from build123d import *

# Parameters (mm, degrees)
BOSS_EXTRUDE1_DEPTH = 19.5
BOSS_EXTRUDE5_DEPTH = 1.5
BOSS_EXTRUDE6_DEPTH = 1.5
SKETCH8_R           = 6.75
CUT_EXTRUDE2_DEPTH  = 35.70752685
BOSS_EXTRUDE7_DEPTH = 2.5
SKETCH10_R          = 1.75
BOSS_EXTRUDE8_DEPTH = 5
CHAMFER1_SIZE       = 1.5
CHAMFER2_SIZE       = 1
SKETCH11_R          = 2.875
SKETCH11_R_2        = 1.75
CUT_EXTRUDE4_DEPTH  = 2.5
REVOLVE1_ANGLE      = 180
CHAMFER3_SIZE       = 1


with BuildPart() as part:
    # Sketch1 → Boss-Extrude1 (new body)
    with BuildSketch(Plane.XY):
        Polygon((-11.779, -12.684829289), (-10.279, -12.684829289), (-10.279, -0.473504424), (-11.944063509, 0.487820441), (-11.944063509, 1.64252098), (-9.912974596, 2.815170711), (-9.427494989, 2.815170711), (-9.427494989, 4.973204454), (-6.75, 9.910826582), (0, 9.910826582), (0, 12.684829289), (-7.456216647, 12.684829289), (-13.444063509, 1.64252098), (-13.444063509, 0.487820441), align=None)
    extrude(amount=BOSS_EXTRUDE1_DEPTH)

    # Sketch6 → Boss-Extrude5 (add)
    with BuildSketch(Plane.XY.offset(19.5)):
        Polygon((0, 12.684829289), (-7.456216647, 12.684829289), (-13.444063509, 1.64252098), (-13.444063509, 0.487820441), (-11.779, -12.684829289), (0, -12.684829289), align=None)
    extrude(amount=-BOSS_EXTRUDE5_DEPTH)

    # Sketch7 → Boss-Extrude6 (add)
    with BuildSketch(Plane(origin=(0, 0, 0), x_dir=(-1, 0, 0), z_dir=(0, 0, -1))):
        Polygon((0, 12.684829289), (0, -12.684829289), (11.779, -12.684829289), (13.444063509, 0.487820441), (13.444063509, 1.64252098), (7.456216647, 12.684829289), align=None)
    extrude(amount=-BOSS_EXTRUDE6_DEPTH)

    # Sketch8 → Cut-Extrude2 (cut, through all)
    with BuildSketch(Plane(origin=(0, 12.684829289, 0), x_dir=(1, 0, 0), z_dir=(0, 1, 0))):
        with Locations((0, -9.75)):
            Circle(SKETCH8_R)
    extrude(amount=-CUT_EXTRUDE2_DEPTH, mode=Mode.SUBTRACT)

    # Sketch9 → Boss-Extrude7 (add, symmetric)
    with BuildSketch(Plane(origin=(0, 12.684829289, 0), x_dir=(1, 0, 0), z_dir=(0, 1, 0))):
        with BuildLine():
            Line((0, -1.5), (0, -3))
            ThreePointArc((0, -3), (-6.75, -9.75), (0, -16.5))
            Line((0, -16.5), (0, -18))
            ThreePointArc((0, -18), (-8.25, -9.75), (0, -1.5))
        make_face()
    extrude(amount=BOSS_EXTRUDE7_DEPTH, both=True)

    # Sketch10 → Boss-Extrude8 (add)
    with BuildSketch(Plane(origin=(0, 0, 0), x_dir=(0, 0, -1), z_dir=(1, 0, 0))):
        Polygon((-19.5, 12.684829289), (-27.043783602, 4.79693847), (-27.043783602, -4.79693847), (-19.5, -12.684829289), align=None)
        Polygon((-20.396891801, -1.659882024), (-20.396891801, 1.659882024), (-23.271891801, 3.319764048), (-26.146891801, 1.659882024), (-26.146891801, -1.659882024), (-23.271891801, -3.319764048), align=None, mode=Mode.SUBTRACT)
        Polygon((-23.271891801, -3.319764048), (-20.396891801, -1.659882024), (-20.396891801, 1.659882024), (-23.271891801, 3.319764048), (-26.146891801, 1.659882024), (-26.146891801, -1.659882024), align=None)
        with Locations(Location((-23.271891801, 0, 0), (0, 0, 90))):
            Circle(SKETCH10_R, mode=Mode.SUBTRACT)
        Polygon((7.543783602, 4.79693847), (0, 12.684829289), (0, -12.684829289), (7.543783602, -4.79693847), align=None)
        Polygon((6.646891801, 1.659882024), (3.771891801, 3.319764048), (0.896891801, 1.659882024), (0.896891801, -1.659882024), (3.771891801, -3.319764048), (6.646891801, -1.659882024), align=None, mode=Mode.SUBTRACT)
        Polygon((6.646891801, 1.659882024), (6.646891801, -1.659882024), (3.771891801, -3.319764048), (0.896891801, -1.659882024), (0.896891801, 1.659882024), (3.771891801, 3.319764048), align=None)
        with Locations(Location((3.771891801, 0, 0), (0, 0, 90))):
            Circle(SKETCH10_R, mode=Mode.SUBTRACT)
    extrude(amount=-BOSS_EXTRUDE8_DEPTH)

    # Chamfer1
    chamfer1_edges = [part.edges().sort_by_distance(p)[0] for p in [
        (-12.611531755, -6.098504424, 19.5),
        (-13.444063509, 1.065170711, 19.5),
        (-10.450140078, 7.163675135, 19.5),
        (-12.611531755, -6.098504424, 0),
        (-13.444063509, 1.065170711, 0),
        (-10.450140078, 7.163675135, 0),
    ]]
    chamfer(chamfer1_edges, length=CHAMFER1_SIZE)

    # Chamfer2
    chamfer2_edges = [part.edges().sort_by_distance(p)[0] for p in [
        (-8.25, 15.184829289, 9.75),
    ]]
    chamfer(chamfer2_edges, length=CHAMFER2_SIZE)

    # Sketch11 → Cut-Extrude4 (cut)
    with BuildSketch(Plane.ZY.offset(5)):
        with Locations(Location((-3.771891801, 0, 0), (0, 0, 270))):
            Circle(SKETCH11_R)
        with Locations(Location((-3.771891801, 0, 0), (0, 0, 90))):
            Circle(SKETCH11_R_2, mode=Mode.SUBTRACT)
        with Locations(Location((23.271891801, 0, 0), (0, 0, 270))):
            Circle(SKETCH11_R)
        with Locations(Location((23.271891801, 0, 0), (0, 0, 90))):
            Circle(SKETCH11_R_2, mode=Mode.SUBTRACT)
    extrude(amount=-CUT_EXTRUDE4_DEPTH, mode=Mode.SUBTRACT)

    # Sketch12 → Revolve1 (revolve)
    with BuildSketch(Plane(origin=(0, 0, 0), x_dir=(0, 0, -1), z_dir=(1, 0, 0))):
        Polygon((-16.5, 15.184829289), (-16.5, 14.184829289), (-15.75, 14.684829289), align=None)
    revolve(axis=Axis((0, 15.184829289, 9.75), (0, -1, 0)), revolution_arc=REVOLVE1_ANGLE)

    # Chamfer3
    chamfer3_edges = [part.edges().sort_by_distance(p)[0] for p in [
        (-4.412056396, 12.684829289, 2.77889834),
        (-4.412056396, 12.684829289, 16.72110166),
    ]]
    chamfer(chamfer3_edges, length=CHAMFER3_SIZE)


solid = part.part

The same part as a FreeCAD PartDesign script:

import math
import FreeCAD as App
import Part
import Sketcher

V = App.Vector
Q = App.Units.Quantity


def edges_at(feature, points):
    """Names of the edges that pass closest to the given points."""
    edges = feature.Shape.Edges
    near = lambda p: min(range(len(edges)), key=lambda i: edges[i].distToShape(Part.Vertex(*p))[0])
    return sorted({f"Edge{near(p) + 1}" for p in points})

doc = App.newDocument("Part")
body = doc.addObject("PartDesign::Body", "Body")

sketch1 = body.newObject("Sketcher::SketchObject", "Sketch")
sketch1.AttachmentSupport = (doc.getObject("XY_Plane"), [""])
sketch1.MapMode = "FlatFace"
sketch1.addGeometry(Part.LineSegment(V(-11.78, -12.68, 0), V(-10.28, -12.68, 0)), False)
sketch1.addGeometry(Part.LineSegment(V(-10.28, -12.68, 0), V(-10.28, -0.47, 0)), False)
sketch1.addGeometry(Part.LineSegment(V(-10.28, -0.47, 0), V(-11.94, 0.49, 0)), False)
sketch1.addGeometry(Part.LineSegment(V(-11.94, 0.49, 0), V(-11.94, 1.64, 0)), False)
sketch1.addGeometry(Part.LineSegment(V(-11.94, 1.64, 0), V(-9.91, 2.82, 0)), False)
sketch1.addGeometry(Part.LineSegment(V(-9.91, 2.82, 0), V(-9.43, 2.82, 0)), False)
sketch1.addGeometry(Part.LineSegment(V(-9.43, 2.82, 0), V(-9.43, 4.97, 0)), False)
sketch1.addGeometry(Part.LineSegment(V(-9.43, 4.97, 0), V(-6.75, 9.91, 0)), False)
sketch1.addGeometry(Part.LineSegment(V(-6.75, 9.91, 0), V(0, 9.91, 0)), False)
sketch1.addGeometry(Part.LineSegment(V(0, 9.91, 0), V(0, 12.68, 0)), False)
sketch1.addGeometry(Part.LineSegment(V(0, 12.68, 0), V(-7.46, 12.68, 0)), False)
sketch1.addGeometry(Part.LineSegment(V(-7.46, 12.68, 0), V(-13.44, 1.64, 0)), False)
sketch1.addGeometry(Part.LineSegment(V(-13.44, 1.64, 0), V(-13.44, 0.49, 0)), False)
sketch1.addGeometry(Part.LineSegment(V(-13.44, 0.49, 0), V(-11.78, -12.68, 0)), False)
sketch1.addConstraint(Sketcher.Constraint("Coincident", 0, 2, 1, 1))
sketch1.addConstraint(Sketcher.Constraint("Coincident", 1, 2, 2, 1))
sketch1.addConstraint(Sketcher.Constraint("Coincident", 2, 2, 3, 1))
sketch1.addConstraint(Sketcher.Constraint("Coincident", 3, 2, 4, 1))
sketch1.addConstraint(Sketcher.Constraint("Coincident", 4, 2, 5, 1))
sketch1.addConstraint(Sketcher.Constraint("Coincident", 5, 2, 6, 1))
sketch1.addConstraint(Sketcher.Constraint("Coincident", 6, 2, 7, 1))
sketch1.addConstraint(Sketcher.Constraint("Coincident", 7, 2, 8, 1))
sketch1.addConstraint(Sketcher.Constraint("Coincident", 8, 2, 9, 1))
sketch1.addConstraint(Sketcher.Constraint("Coincident", 9, 2, 10, 1))
sketch1.addConstraint(Sketcher.Constraint("Coincident", 10, 2, 11, 1))
sketch1.addConstraint(Sketcher.Constraint("Coincident", 11, 2, 12, 1))
sketch1.addConstraint(Sketcher.Constraint("Coincident", 12, 2, 13, 1))
sketch1.addConstraint(Sketcher.Constraint("Coincident", 13, 2, 0, 1))
sketch1.addConstraint(Sketcher.Constraint("Horizontal", 0))
sketch1.addConstraint(Sketcher.Constraint("Vertical", 1))
sketch1.addConstraint(Sketcher.Constraint("Vertical", 3))
sketch1.addConstraint(Sketcher.Constraint("Horizontal", 5))
sketch1.addConstraint(Sketcher.Constraint("Vertical", 6))
sketch1.addConstraint(Sketcher.Constraint("Horizontal", 8))
sketch1.addConstraint(Sketcher.Constraint("Vertical", 9))
sketch1.addConstraint(Sketcher.Constraint("Horizontal", 10))
sketch1.addConstraint(Sketcher.Constraint("Vertical", 12))
sketch1.addConstraint(Sketcher.Constraint("PointOnObject", 8, 2, -2))
sketch1.addConstraint(Sketcher.Constraint("Parallel", 7, 11))
sketch1.addConstraint(Sketcher.Constraint("Horizontal", 3, 2, 11, 2))
sketch1.addConstraint(Sketcher.Constraint("Horizontal", 2, 2, 12, 2))
sketch1.addConstraint(Sketcher.Constraint("Angle", 2, Q("150 deg")))
sketch1.addConstraint(Sketcher.Constraint("Angle", 4, Q("30 deg")))
sketch1.addConstraint(Sketcher.Constraint("DistanceX", 0, 1, 0, 2, 1.5))
sketch1.addConstraint(Sketcher.Constraint("DistanceX", 8, 1, 8, 2, 6.75))
sketch1.addConstraint(Sketcher.Constraint("DistanceY", 0, 2, 4, 2, 15.5))
sketch1.addConstraint(Sketcher.Constraint("DistanceX", 11, 2, 3, 2, 1.5))
sketch1.addConstraint(Sketcher.Constraint("DistanceY", 3, 1, 3, 2, 1.154701))
sketch1.addConstraint(Sketcher.Constraint("DistanceX", 0, 2, -1, 1, 10.279))
sketch1.addConstraint(Sketcher.Constraint("Distance", 4, 2.345299))
sketch1.addConstraint(Sketcher.Constraint("DistanceX", 5, 1, 5, 2, 0.48548))
sketch1.addConstraint(Sketcher.Constraint("Distance", 2, 1.92265))
sketch1.addConstraint(Sketcher.Constraint("DistanceX", 10, 2, 10, 1, 7.456217))
sketch1.addConstraint(Sketcher.Constraint("DistanceY", 6, 1, 6, 2, 2.158034))
sketch1.addConstraint(Sketcher.Constraint("DistanceY", 9, 1, 9, 2, 2.774003))
sketch1.addConstraint(Sketcher.Constraint("DistanceY", 0, 2, -1, 1, 12.684829))
pad1 = body.newObject("PartDesign::Pad", "Pad")
pad1.Profile = sketch1
pad1.Length = 19.5

sketch2 = body.newObject("Sketcher::SketchObject", "Sketch001")
sketch2.AttachmentSupport = (doc.getObject("XY_Plane"), [""])
sketch2.MapMode = "FlatFace"
sketch2.AttachmentOffset = App.Placement(V(0, 0, 19.5), App.Rotation())
sketch2.addGeometry(Part.LineSegment(V(0, 12.7, 0), V(-7.5, 12.7, 0)), False)
sketch2.addGeometry(Part.LineSegment(V(-7.5, 12.7, 0), V(-13.4, 1.6, 0)), False)
sketch2.addGeometry(Part.LineSegment(V(-13.4, 1.6, 0), V(-13.4, 0.5, 0)), False)
sketch2.addGeometry(Part.LineSegment(V(-13.4, 0.5, 0), V(-11.8, -12.7, 0)), False)
sketch2.addGeometry(Part.LineSegment(V(-11.8, -12.7, 0), V(0, -12.7, 0)), False)
sketch2.addGeometry(Part.LineSegment(V(0, -12.7, 0), V(0, 12.7, 0)), False)
sketch2.addConstraint(Sketcher.Constraint("Coincident", 0, 2, 1, 1))
sketch2.addConstraint(Sketcher.Constraint("Coincident", 1, 2, 2, 1))
sketch2.addConstraint(Sketcher.Constraint("Coincident", 2, 2, 3, 1))
sketch2.addConstraint(Sketcher.Constraint("Coincident", 3, 2, 4, 1))
sketch2.addConstraint(Sketcher.Constraint("Coincident", 4, 2, 5, 1))
sketch2.addConstraint(Sketcher.Constraint("Coincident", 5, 2, 0, 1))
sketch2.addConstraint(Sketcher.Constraint("Horizontal", 0))
sketch2.addConstraint(Sketcher.Constraint("Vertical", 2))
sketch2.addConstraint(Sketcher.Constraint("Horizontal", 4))
sketch2.addConstraint(Sketcher.Constraint("Vertical", 5))
sketch2.addConstraint(Sketcher.Constraint("Symmetric", 4, 2, 5, 2, -1, 1))
sketch2.addConstraint(Sketcher.Constraint("DistanceX", 4, 1, 4, 2, 11.779))
sketch2.addConstraint(Sketcher.Constraint("DistanceY", 2, 2, 2, 1, 1.154701))
sketch2.addConstraint(Sketcher.Constraint("DistanceY", 5, 1, 5, 2, 25.369659))
sketch2.addConstraint(Sketcher.Constraint("DistanceX", 0, 2, 0, 1, 7.456217))
sketch2.addConstraint(Sketcher.Constraint("DistanceY", -1, 1, 1, 2, 1.642521))
sketch2.addConstraint(Sketcher.Constraint("Distance", 1, 12.561325))
pad2 = body.newObject("PartDesign::Pad", "Pad001")
pad2.Profile = sketch2
pad2.Length = 1.5
pad2.Reversed = True

sketch3 = body.newObject("Sketcher::SketchObject", "Sketch002")
sketch3.AttachmentSupport = (doc.getObject("XY_Plane"), [""])
sketch3.MapMode = "FlatFace"
sketch3.addGeometry(Part.LineSegment(V(0, 12.7, 0), V(0, -12.7, 0)), False)
sketch3.addGeometry(Part.LineSegment(V(0, -12.7, 0), V(-11.8, -12.7, 0)), False)
sketch3.addGeometry(Part.LineSegment(V(-11.8, -12.7, 0), V(-13.4, 0.5, 0)), False)
sketch3.addGeometry(Part.LineSegment(V(-13.4, 0.5, 0), V(-13.4, 1.6, 0)), False)
sketch3.addGeometry(Part.LineSegment(V(-13.4, 1.6, 0), V(-7.5, 12.7, 0)), False)
sketch3.addGeometry(Part.LineSegment(V(-7.5, 12.7, 0), V(0, 12.7, 0)), False)
sketch3.addConstraint(Sketcher.Constraint("Coincident", 0, 2, 1, 1))
sketch3.addConstraint(Sketcher.Constraint("Coincident", 1, 2, 2, 1))
sketch3.addConstraint(Sketcher.Constraint("Coincident", 2, 2, 3, 1))
sketch3.addConstraint(Sketcher.Constraint("Coincident", 3, 2, 4, 1))
sketch3.addConstraint(Sketcher.Constraint("Coincident", 4, 2, 5, 1))
sketch3.addConstraint(Sketcher.Constraint("Coincident", 5, 2, 0, 1))
sketch3.addConstraint(Sketcher.Constraint("Vertical", 0))
sketch3.addConstraint(Sketcher.Constraint("Horizontal", 1))
sketch3.addConstraint(Sketcher.Constraint("Vertical", 3))
sketch3.addConstraint(Sketcher.Constraint("Horizontal", 5))
sketch3.addConstraint(Sketcher.Constraint("Symmetric", 0, 2, 5, 2, -1, 1))
sketch3.addConstraint(Sketcher.Constraint("DistanceX", 1, 2, 1, 1, 11.779))
sketch3.addConstraint(Sketcher.Constraint("DistanceY", 3, 1, 3, 2, 1.154701))
sketch3.addConstraint(Sketcher.Constraint("DistanceY", 0, 2, 0, 1, 25.369659))
sketch3.addConstraint(Sketcher.Constraint("DistanceX", 5, 1, 5, 2, 7.456217))
sketch3.addConstraint(Sketcher.Constraint("DistanceY", -1, 1, 2, 2, 0.48782))
sketch3.addConstraint(Sketcher.Constraint("Distance", 2, 13.277467))
pad3 = body.newObject("PartDesign::Pad", "Pad002")
pad3.Profile = sketch3
pad3.Length = 1.5

sketch4 = body.newObject("Sketcher::SketchObject", "Sketch003")
sketch4.AttachmentSupport = (doc.getObject("XZ_Plane"), [""])
sketch4.MapMode = "FlatFace"
sketch4.AttachmentOffset = App.Placement(V(0, 0, -12.684829), App.Rotation())
sketch4.addGeometry(Part.Circle(V(0, 10, 0), V(0, 0, 1), 7), False)
sketch4.addConstraint(Sketcher.Constraint("PointOnObject", 0, 3, -2))
sketch4.addConstraint(Sketcher.Constraint("Diameter", 0, 13.5))
sketch4.addConstraint(Sketcher.Constraint("DistanceY", -1, 1, 0, 3, 9.75))
pocket1 = body.newObject("PartDesign::Pocket", "Pocket")
pocket1.Profile = sketch4
pocket1.Type = "ThroughAll"
pocket1.Reversed = True

sketch5 = body.newObject("Sketcher::SketchObject", "Sketch004")
sketch5.AttachmentSupport = (doc.getObject("XZ_Plane"), [""])
sketch5.MapMode = "FlatFace"
sketch5.AttachmentOffset = App.Placement(V(0, 0, -12.684829), App.Rotation())
sketch5.addGeometry(Part.LineSegment(V(0, 3, 0), V(0, 1.5, 0)), False)
sketch5.addGeometry(Part.ArcOfCircle(Part.Circle(V(0, 9.8, 0), V(0, 0, 1), 8.2), math.radians(90), math.radians(270)), False)
sketch5.addGeometry(Part.LineSegment(V(0, 18, 0), V(0, 16.5, 0)), False)
sketch5.addGeometry(Part.ArcOfCircle(Part.Circle(V(0, 9.8, 0), V(0, 0, 1), 6.8), math.radians(90), math.radians(270)), False)
sketch5.addConstraint(Sketcher.Constraint("Coincident", 0, 2, 1, 2))
sketch5.addConstraint(Sketcher.Constraint("Coincident", 1, 1, 2, 1))
sketch5.addConstraint(Sketcher.Constraint("Coincident", 2, 2, 3, 1))
sketch5.addConstraint(Sketcher.Constraint("Coincident", 3, 2, 0, 1))
sketch5.addConstraint(Sketcher.Constraint("Vertical", 0))
sketch5.addConstraint(Sketcher.Constraint("Vertical", 2))
sketch5.addConstraint(Sketcher.Constraint("Coincident", 3, 3, 1, 3))
sketch5.addConstraint(Sketcher.Constraint("PointOnObject", 1, 3, -2))
sketch5.addConstraint(Sketcher.Constraint("PointOnObject", 0, 2, -2))
sketch5.addConstraint(Sketcher.Constraint("PointOnObject", 1, 1, -2))
sketch5.addConstraint(Sketcher.Constraint("Radius", 1, 8.25))
sketch5.addConstraint(Sketcher.Constraint("Radius", 3, 6.75))
sketch5.addConstraint(Sketcher.Constraint("DistanceY", -1, 1, 1, 1, 18.0))
pad4 = body.newObject("PartDesign::Pad", "Pad003")
pad4.Profile = sketch5
pad4.Length = 5
pad4.Midplane = True

sketch6 = body.newObject("Sketcher::SketchObject", "Sketch005")
sketch6.AttachmentSupport = (doc.getObject("YZ_Plane"), [""])
sketch6.MapMode = "FlatFace"
sketch6.addGeometry(Part.LineSegment(V(12.7, 19.5, 0), V(4.8, 27, 0)), False)
sketch6.addGeometry(Part.LineSegment(V(4.8, 27, 0), V(-4.8, 27, 0)), False)
sketch6.addGeometry(Part.LineSegment(V(-4.8, 27, 0), V(-12.7, 19.5, 0)), False)
sketch6.addGeometry(Part.LineSegment(V(-12.7, 19.5, 0), V(12.7, 19.5, 0)), False)
sketch6.addGeometry(Part.Circle(V(0, 23.3, 0), V(0, 0, 1), 1.8), False)
sketch6.addGeometry(Part.LineSegment(V(4.8, -7.5, 0), V(12.7, 0, 0)), False)
sketch6.addGeometry(Part.LineSegment(V(12.7, 0, 0), V(-12.7, 0, 0)), False)
sketch6.addGeometry(Part.LineSegment(V(-12.7, 0, 0), V(-4.8, -7.5, 0)), False)
sketch6.addGeometry(Part.LineSegment(V(-4.8, -7.5, 0), V(4.8, -7.5, 0)), False)
sketch6.addGeometry(Part.Circle(V(0, -3.8, 0), V(0, 0, 1), 1.8), False)
sketch6.addConstraint(Sketcher.Constraint("Coincident", 0, 2, 1, 1))
sketch6.addConstraint(Sketcher.Constraint("Coincident", 1, 2, 2, 1))
sketch6.addConstraint(Sketcher.Constraint("Coincident", 2, 2, 3, 1))
sketch6.addConstraint(Sketcher.Constraint("Coincident", 3, 2, 0, 1))
sketch6.addConstraint(Sketcher.Constraint("Coincident", 5, 2, 6, 1))
sketch6.addConstraint(Sketcher.Constraint("Coincident", 6, 2, 7, 1))
sketch6.addConstraint(Sketcher.Constraint("Coincident", 7, 2, 8, 1))
sketch6.addConstraint(Sketcher.Constraint("Coincident", 8, 2, 5, 1))
sketch6.addConstraint(Sketcher.Constraint("Horizontal", 1))
sketch6.addConstraint(Sketcher.Constraint("Horizontal", 3))
sketch6.addConstraint(Sketcher.Constraint("Horizontal", 6))
sketch6.addConstraint(Sketcher.Constraint("Horizontal", 8))
sketch6.addConstraint(Sketcher.Constraint("Equal", 4, 9))
sketch6.addConstraint(Sketcher.Constraint("Symmetric", 5, 2, 6, 2, -1, 1))
sketch6.addConstraint(Sketcher.Constraint("PointOnObject", 4, 3, -2))
sketch6.addConstraint(Sketcher.Constraint("PointOnObject", 9, 3, -2))
sketch6.addConstraint(Sketcher.Constraint("Parallel", 2, 5))
sketch6.addConstraint(Sketcher.Constraint("Parallel", 0, 7))
sketch6.addConstraint(Sketcher.Constraint("Vertical", 3, 2, 5, 2))
sketch6.addConstraint(Sketcher.Constraint("Vertical", 2, 2, 6, 2))
sketch6.addConstraint(Sketcher.Constraint("Vertical", 1, 2, 7, 2))
sketch6.addConstraint(Sketcher.Constraint("Vertical", 0, 2, 8, 2))
sketch6.addConstraint(Sketcher.Constraint("Diameter", 4, 3.5))
sketch6.addConstraint(Sketcher.Constraint("DistanceY", -1, 1, 2, 2, 19.5))
sketch6.addConstraint(Sketcher.Constraint("DistanceX", 3, 1, 3, 2, 25.369659))
sketch6.addConstraint(Sketcher.Constraint("DistanceX", 1, 2, 1, 1, 9.593877))
sketch6.addConstraint(Sketcher.Constraint("DistanceY", -1, 1, 4, 3, 23.271892))
sketch6.addConstraint(Sketcher.Constraint("DistanceY", 9, 3, -1, 1, 3.771892))
sketch6.addConstraint(Sketcher.Constraint("DistanceY", 4, 3, 0, 2, 3.771892))
pad5 = body.newObject("PartDesign::Pad", "Pad004")
pad5.Profile = sketch6
pad5.Length = 5
pad5.Reversed = True
doc.recompute()

chamfer = body.newObject("PartDesign::Chamfer", "Chamfer")
chamfer.Base = (pad5, edges_at(pad5, [
    (-12.612, -6.099, 19.5),
    (-13.444, 1.065, 19.5),
    (-10.45, 7.164, 19.5),
    (-12.612, -6.099, 0),
    (-13.444, 1.065, 0),
    (-10.45, 7.164, 0),
]))
chamfer.Size = 1.5
doc.recompute()

chamfer2 = body.newObject("PartDesign::Chamfer", "Chamfer001")
chamfer2.Base = (chamfer, edges_at(chamfer, [(-8.25, 15.185, 9.75)]))
chamfer2.Size = 1

sketch7 = body.newObject("Sketcher::SketchObject", "Sketch006")
sketch7.AttachmentSupport = (doc.getObject("YZ_Plane"), [""])
sketch7.MapMode = "FlatFace"
sketch7.AttachmentOffset = App.Placement(V(0, 0, -5), App.Rotation())
sketch7.addGeometry(Part.Circle(V(0, -3.8, 0), V(0, 0, 1), 2.9), False)
sketch7.addGeometry(Part.Circle(V(0, -3.8, 0), V(0, 0, 1), 1.8), False)
sketch7.addGeometry(Part.Circle(V(0, 23.3, 0), V(0, 0, 1), 2.9), False)
sketch7.addGeometry(Part.Circle(V(0, 23.3, 0), V(0, 0, 1), 1.8), False)
sketch7.addConstraint(Sketcher.Constraint("Coincident", 1, 3, 0, 3))
sketch7.addConstraint(Sketcher.Constraint("Coincident", 3, 3, 2, 3))
sketch7.addConstraint(Sketcher.Constraint("Equal", 0, 2))
sketch7.addConstraint(Sketcher.Constraint("Equal", 1, 3))
sketch7.addConstraint(Sketcher.Constraint("PointOnObject", 0, 3, -2))
sketch7.addConstraint(Sketcher.Constraint("PointOnObject", 2, 3, -2))
sketch7.addConstraint(Sketcher.Constraint("Diameter", 1, 3.5))
sketch7.addConstraint(Sketcher.Constraint("Diameter", 0, 5.75))
sketch7.addConstraint(Sketcher.Constraint("DistanceY", 0, 3, -1, 1, 3.771892))
sketch7.addConstraint(Sketcher.Constraint("DistanceY", -1, 1, 2, 3, 23.271892))
pocket2 = body.newObject("PartDesign::Pocket", "Pocket001")
pocket2.Profile = sketch7
pocket2.Length = 2.5
pocket2.Reversed = True

sketch8 = body.newObject("Sketcher::SketchObject", "Sketch007")
sketch8.AttachmentSupport = (doc.getObject("YZ_Plane"), [""])
sketch8.MapMode = "FlatFace"
sketch8.addGeometry(Part.LineSegment(V(15.2, 16.5, 0), V(14.2, 16.5, 0)), False)
sketch8.addGeometry(Part.LineSegment(V(14.2, 16.5, 0), V(14.7, 15.8, 0)), False)
sketch8.addGeometry(Part.LineSegment(V(14.7, 15.8, 0), V(15.2, 16.5, 0)), False)
sketch8.addGeometry(Part.LineSegment(V(15.2, 9.8, 0), V(14.2, 9.8, 0)), True)
sketch8.addConstraint(Sketcher.Constraint("Coincident", 0, 2, 1, 1))
sketch8.addConstraint(Sketcher.Constraint("Coincident", 1, 2, 2, 1))
sketch8.addConstraint(Sketcher.Constraint("Coincident", 2, 2, 0, 1))
sketch8.addConstraint(Sketcher.Constraint("Horizontal", 0))
sketch8.addConstraint(Sketcher.Constraint("Horizontal", 3))
sketch8.addConstraint(Sketcher.Constraint("Vertical", 2, 2, 3, 1))
sketch8.addConstraint(Sketcher.Constraint("Vertical", 0, 2, 3, 2))
sketch8.addConstraint(Sketcher.Constraint("Equal", 1, 2))
sketch8.addConstraint(Sketcher.Constraint("DistanceX", 0, 2, 0, 1, 1.0))
sketch8.addConstraint(Sketcher.Constraint("DistanceY", 3, 1, 1, 2, 6.0))
sketch8.addConstraint(Sketcher.Constraint("DistanceY", -1, 1, 0, 2, 16.5))
sketch8.addConstraint(Sketcher.Constraint("DistanceY", -1, 1, 1, 2, 15.75))
sketch8.addConstraint(Sketcher.Constraint("DistanceX", -1, 1, 0, 2, 14.184829))
revolution = body.newObject("PartDesign::Revolution", "Revolution")
revolution.Profile = sketch8
revolution.ReferenceAxis = (sketch8, ["Axis0"])
revolution.Angle = 180
doc.recompute()

chamfer3 = body.newObject("PartDesign::Chamfer", "Chamfer002")
chamfer3.Base = (revolution, edges_at(revolution, [(-4.412, 12.685, 2.779), (-4.412, 12.685, 16.721)]))
chamfer3.Size = 1

doc.recompute()
